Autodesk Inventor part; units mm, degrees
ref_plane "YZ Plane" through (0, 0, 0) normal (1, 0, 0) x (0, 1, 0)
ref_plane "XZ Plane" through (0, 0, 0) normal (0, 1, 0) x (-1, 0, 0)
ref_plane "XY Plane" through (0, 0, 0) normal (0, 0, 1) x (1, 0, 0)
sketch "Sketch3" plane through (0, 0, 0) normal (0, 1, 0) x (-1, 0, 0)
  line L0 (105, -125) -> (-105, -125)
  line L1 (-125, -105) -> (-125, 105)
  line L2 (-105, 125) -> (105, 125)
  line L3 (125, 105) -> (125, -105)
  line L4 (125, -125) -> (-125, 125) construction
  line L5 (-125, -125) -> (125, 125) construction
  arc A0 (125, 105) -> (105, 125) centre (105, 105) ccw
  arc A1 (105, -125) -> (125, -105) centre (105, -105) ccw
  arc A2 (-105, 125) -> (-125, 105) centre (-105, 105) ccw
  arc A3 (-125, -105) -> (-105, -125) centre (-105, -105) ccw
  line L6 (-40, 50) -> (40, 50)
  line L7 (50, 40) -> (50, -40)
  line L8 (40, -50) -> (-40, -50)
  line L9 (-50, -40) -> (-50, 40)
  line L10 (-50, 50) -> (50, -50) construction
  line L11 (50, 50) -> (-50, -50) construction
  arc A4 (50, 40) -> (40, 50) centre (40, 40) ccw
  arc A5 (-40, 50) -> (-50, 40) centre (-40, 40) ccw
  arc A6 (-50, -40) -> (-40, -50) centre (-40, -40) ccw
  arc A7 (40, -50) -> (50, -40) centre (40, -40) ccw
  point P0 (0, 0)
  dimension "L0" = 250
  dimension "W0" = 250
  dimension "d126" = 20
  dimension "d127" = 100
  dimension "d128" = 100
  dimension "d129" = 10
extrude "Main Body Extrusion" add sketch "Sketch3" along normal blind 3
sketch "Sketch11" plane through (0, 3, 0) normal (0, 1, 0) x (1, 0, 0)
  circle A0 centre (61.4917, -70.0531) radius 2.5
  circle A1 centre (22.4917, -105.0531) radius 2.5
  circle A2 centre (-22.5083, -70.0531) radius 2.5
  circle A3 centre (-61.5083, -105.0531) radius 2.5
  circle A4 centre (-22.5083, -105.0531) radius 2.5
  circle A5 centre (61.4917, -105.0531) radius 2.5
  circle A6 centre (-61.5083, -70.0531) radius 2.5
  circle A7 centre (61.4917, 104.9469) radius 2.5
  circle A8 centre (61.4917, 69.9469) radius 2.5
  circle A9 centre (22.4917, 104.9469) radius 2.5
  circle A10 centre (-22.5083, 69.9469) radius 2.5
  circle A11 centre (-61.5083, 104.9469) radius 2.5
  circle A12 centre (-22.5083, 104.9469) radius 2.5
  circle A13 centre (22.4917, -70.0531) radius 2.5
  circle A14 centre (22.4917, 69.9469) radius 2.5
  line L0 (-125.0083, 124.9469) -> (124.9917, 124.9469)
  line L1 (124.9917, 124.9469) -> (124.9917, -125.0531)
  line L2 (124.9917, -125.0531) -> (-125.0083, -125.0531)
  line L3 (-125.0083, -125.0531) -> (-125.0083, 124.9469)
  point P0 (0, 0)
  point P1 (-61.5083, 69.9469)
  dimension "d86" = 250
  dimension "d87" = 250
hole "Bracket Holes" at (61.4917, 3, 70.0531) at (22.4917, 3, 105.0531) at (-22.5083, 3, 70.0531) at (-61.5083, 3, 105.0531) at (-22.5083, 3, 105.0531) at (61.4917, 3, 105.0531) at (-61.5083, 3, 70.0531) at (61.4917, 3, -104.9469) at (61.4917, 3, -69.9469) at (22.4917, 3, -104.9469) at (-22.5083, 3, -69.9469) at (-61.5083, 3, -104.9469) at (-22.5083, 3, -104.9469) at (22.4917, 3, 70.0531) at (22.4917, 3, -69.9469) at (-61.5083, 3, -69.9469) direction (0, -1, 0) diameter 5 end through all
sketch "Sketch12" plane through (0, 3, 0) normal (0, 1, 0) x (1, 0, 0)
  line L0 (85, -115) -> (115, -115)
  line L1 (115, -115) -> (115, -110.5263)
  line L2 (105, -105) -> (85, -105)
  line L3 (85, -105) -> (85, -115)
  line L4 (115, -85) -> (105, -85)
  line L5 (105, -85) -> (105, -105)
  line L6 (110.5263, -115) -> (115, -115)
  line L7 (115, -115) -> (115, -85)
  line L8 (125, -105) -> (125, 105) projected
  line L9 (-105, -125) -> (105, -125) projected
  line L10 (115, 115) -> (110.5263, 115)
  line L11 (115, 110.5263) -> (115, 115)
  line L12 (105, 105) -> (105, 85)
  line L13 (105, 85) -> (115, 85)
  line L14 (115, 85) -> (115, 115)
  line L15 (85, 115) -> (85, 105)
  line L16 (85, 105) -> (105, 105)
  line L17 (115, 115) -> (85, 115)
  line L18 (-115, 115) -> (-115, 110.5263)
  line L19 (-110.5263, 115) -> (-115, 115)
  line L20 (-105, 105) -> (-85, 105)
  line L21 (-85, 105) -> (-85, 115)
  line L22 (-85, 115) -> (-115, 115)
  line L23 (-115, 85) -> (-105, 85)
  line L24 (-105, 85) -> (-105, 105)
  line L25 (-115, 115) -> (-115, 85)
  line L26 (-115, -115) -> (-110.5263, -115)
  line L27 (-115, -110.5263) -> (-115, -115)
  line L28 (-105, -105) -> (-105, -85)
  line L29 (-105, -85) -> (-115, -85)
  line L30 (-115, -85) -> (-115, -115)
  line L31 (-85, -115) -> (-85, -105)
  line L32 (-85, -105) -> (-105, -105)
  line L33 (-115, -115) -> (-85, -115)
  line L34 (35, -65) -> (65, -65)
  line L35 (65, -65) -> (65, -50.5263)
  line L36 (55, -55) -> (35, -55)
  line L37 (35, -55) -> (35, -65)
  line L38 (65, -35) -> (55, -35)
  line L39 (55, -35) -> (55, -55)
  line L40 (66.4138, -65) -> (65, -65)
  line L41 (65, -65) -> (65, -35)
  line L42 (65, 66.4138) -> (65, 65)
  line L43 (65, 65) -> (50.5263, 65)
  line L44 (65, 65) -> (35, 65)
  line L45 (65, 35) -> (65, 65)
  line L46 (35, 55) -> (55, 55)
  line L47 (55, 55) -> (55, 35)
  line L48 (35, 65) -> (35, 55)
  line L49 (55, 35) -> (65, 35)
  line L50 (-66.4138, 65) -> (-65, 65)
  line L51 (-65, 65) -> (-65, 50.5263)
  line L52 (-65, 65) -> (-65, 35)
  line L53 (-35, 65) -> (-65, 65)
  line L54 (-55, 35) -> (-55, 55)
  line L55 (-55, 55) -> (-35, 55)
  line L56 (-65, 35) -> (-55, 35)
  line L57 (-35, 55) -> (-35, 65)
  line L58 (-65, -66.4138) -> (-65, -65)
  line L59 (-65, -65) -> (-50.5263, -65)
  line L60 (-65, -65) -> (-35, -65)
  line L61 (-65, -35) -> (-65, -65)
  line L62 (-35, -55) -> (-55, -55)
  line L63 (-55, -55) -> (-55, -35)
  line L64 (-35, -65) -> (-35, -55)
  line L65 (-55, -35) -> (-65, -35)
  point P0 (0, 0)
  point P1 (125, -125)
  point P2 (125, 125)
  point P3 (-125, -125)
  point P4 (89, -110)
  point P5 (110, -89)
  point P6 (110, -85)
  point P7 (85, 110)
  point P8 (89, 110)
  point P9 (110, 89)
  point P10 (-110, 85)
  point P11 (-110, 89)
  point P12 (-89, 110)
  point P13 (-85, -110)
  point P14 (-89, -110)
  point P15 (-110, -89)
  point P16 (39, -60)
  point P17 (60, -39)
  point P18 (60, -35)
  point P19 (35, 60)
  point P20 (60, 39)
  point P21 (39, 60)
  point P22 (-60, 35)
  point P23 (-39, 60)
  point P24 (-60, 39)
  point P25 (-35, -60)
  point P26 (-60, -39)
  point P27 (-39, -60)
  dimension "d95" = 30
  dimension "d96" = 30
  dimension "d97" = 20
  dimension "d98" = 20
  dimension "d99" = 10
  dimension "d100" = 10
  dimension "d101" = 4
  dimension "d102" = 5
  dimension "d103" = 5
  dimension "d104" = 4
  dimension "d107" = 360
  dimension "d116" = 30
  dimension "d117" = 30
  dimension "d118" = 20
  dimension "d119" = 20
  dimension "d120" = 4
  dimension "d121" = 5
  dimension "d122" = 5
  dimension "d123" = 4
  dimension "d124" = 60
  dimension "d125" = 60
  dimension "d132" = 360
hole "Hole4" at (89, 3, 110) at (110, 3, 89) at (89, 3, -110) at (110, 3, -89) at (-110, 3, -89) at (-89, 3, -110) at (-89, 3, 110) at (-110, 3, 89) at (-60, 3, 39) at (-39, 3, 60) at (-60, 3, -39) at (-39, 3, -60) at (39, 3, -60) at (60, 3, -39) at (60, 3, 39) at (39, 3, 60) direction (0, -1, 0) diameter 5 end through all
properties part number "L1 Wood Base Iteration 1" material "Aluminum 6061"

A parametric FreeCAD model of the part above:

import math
import FreeCAD as App
import Part
import Sketcher
Q = App.Units.Quantity

doc = App.newDocument("Part")
params = doc.addObject("Spreadsheet::Sheet", "Params")
for row, (alias, value) in enumerate([
    ("sketch1_radius", "20 mm"),
    ("sketch1_radius2", "10 mm"),
    ("sketch1_width", "210 mm"),
    ("sketch1_width2", "80 mm"),
    ("pad1_length", "3 mm"),
    ("sketch2_diameter", "5 mm"),
    ("hole_diameter", "5 mm"),
    ("sketch3_diameter", "5 mm"),
    ("hole2_diameter", "5 mm"),
], start=1):
    params.set(f"A{row}", alias)
    params.set(f"B{row}", "=" + value)
    params.setAlias(f"B{row}", alias)

body = doc.addObject("PartDesign::Body", "Body")

# Sketch on XZ plane
sketch1 = body.newObject("Sketcher::SketchObject", "Sketch")
sketch1.AttachmentSupport = (doc.getObject("XZ_Plane"), [""])
sketch1.MapMode = "FlatFace"
sketch1.addGeometry(Part.LineSegment(App.Vector(105, -125, 0), App.Vector(-105, -125, 0)), False)
sketch1.addGeometry(Part.ArcOfCircle(Part.Circle(App.Vector(-105, -105, 0), App.Vector(0, 0, 1), 20), math.radians(180), math.radians(270)), False)
sketch1.addGeometry(Part.LineSegment(App.Vector(-125, -105, 0), App.Vector(-125, 105, 0)), False)
sketch1.addGeometry(Part.ArcOfCircle(Part.Circle(App.Vector(-105, 105, 0), App.Vector(0, 0, 1), 20), math.radians(90), math.radians(180)), False)
sketch1.addGeometry(Part.LineSegment(App.Vector(-105, 125, 0), App.Vector(105, 125, 0)), False)
sketch1.addGeometry(Part.ArcOfCircle(Part.Circle(App.Vector(105, 105, 0), App.Vector(0, 0, 1), 20), math.radians(0), math.radians(90)), False)
sketch1.addGeometry(Part.LineSegment(App.Vector(125, 105, 0), App.Vector(125, -105, 0)), False)
sketch1.addGeometry(Part.ArcOfCircle(Part.Circle(App.Vector(105, -105, 0), App.Vector(0, 0, 1), 20), math.radians(-90), math.radians(0)), False)
sketch1.addGeometry(Part.ArcOfCircle(Part.Circle(App.Vector(40, 40, 0), App.Vector(0, 0, 1), 10), math.radians(0), math.radians(90)), False)
sketch1.addGeometry(Part.LineSegment(App.Vector(40, 50, 0), App.Vector(-40, 50, 0)), False)
sketch1.addGeometry(Part.ArcOfCircle(Part.Circle(App.Vector(-40, 40, 0), App.Vector(0, 0, 1), 10), math.radians(90), math.radians(180)), False)
sketch1.addGeometry(Part.LineSegment(App.Vector(-50, 40, 0), App.Vector(-50, -40, 0)), False)
sketch1.addGeometry(Part.ArcOfCircle(Part.Circle(App.Vector(-40, -40, 0), App.Vector(0, 0, 1), 10), math.radians(180), math.radians(270)), False)
sketch1.addGeometry(Part.LineSegment(App.Vector(-40, -50, 0), App.Vector(40, -50, 0)), False)
sketch1.addGeometry(Part.ArcOfCircle(Part.Circle(App.Vector(40, -40, 0), App.Vector(0, 0, 1), 10), math.radians(-90), math.radians(0)), False)
sketch1.addGeometry(Part.LineSegment(App.Vector(50, -40, 0), App.Vector(50, 40, 0)), False)
sketch1.addConstraint(Sketcher.Constraint("Tangent", 0, 2, 1, 2))
sketch1.addConstraint(Sketcher.Constraint("Tangent", 1, 1, 2, 1))
sketch1.addConstraint(Sketcher.Constraint("Tangent", 2, 2, 3, 2))
sketch1.addConstraint(Sketcher.Constraint("Tangent", 3, 1, 4, 1))
sketch1.addConstraint(Sketcher.Constraint("Tangent", 4, 2, 5, 2))
sketch1.addConstraint(Sketcher.Constraint("Tangent", 5, 1, 6, 1))
sketch1.addConstraint(Sketcher.Constraint("Tangent", 6, 2, 7, 2))
sketch1.addConstraint(Sketcher.Constraint("Tangent", 7, 1, 0, 1))
sketch1.addConstraint(Sketcher.Constraint("Tangent", 8, 2, 9, 1))
sketch1.addConstraint(Sketcher.Constraint("Tangent", 9, 2, 10, 1))
sketch1.addConstraint(Sketcher.Constraint("Tangent", 10, 2, 11, 1))
sketch1.addConstraint(Sketcher.Constraint("Tangent", 11, 2, 12, 1))
sketch1.addConstraint(Sketcher.Constraint("Tangent", 12, 2, 13, 1))
sketch1.addConstraint(Sketcher.Constraint("Tangent", 13, 2, 14, 1))
sketch1.addConstraint(Sketcher.Constraint("Tangent", 14, 2, 15, 1))
sketch1.addConstraint(Sketcher.Constraint("Tangent", 15, 2, 8, 1))
sketch1.addConstraint(Sketcher.Constraint("Horizontal", 0))
sketch1.addConstraint(Sketcher.Constraint("Vertical", 2))
sketch1.addConstraint(Sketcher.Constraint("Horizontal", 4))
sketch1.addConstraint(Sketcher.Constraint("Vertical", 6))
sketch1.addConstraint(Sketcher.Constraint("Horizontal", 9))
sketch1.addConstraint(Sketcher.Constraint("Vertical", 11))
sketch1.addConstraint(Sketcher.Constraint("Horizontal", 13))
sketch1.addConstraint(Sketcher.Constraint("Vertical", 15))
sketch1.addConstraint(Sketcher.Constraint("Equal", 1, 3))
sketch1.addConstraint(Sketcher.Constraint("Equal", 3, 5))
sketch1.addConstraint(Sketcher.Constraint("Equal", 5, 7))
sketch1.addConstraint(Sketcher.Constraint("Equal", 8, 10))
sketch1.addConstraint(Sketcher.Constraint("Equal", 10, 12))
sketch1.addConstraint(Sketcher.Constraint("Equal", 12, 14))
sketch1.addConstraint(Sketcher.Constraint("Symmetric", 1, 3, 5, 3, -1, 1))
sketch1.addConstraint(Sketcher.Constraint("Symmetric", 8, 3, 12, 3, -1, 1))
sketch1.addConstraint(Sketcher.Constraint("Equal", 4, 2))
sketch1.addConstraint(Sketcher.Constraint("Equal", 13, 11))
sketch1.addConstraint(Sketcher.Constraint("Radius", 1, Q("20 mm")))
sketch1.addConstraint(Sketcher.Constraint("Radius", 8, Q("10 mm")))
sketch1.addConstraint(Sketcher.Constraint("DistanceX", 0, 2, 0, 1, Q("210 mm")))
sketch1.addConstraint(Sketcher.Constraint("DistanceX", 9, 2, 9, 1, Q("80 mm")))
sketch1.setExpression("Constraints[34]", "Params.sketch1_radius")
sketch1.setExpression("Constraints[35]", "Params.sketch1_radius2")
sketch1.setExpression("Constraints[36]", "Params.sketch1_width")
sketch1.setExpression("Constraints[37]", "Params.sketch1_width2")
pad1 = body.newObject("PartDesign::Pad", "Pad")
pad1.Profile = sketch1
pad1.setExpression("Length", "Params.pad1_length")
pad1.Reversed = True

# Sketch on XZ plane
sketch2 = body.newObject("Sketcher::SketchObject", "Sketch001")
sketch2.AttachmentSupport = (doc.getObject("XZ_Plane"), [""])
sketch2.MapMode = "FlatFace"
sketch2.AttachmentOffset = App.Placement(App.Vector(0, 0, -3), App.Rotation())
sketch2.addGeometry(Part.Circle(App.Vector(61.5, 70.1, 0), App.Vector(0, 0, 1), 2.5), False)
sketch2.addGeometry(Part.Circle(App.Vector(22.5, 105.1, 0), App.Vector(0, 0, 1), 2.5), False)
sketch2.addGeometry(Part.Circle(App.Vector(-22.5, 70.1, 0), App.Vector(0, 0, 1), 2.5), False)
sketch2.addGeometry(Part.Circle(App.Vector(-61.5, 105.1, 0), App.Vector(0, 0, 1), 2.5), False)
sketch2.addGeometry(Part.Circle(App.Vector(-22.5, 105.1, 0), App.Vector(0, 0, 1), 2.5), False)
sketch2.addGeometry(Part.Circle(App.Vector(61.5, 105.1, 0), App.Vector(0, 0, 1), 2.5), False)
sketch2.addGeometry(Part.Circle(App.Vector(-61.5, 70.1, 0), App.Vector(0, 0, 1), 2.5), False)
sketch2.addGeometry(Part.Circle(App.Vector(61.5, -104.9, 0), App.Vector(0, 0, 1), 2.5), False)
sketch2.addGeometry(Part.Circle(App.Vector(61.5, -69.9, 0), App.Vector(0, 0, 1), 2.5), False)
sketch2.addGeometry(Part.Circle(App.Vector(22.5, -104.9, 0), App.Vector(0, 0, 1), 2.5), False)
sketch2.addGeometry(Part.Circle(App.Vector(-22.5, -69.9, 0), App.Vector(0, 0, 1), 2.5), False)
sketch2.addGeometry(Part.Circle(App.Vector(-61.5, -104.9, 0), App.Vector(0, 0, 1), 2.5), False)
sketch2.addGeometry(Part.Circle(App.Vector(-22.5, -104.9, 0), App.Vector(0, 0, 1), 2.5), False)
sketch2.addGeometry(Part.Circle(App.Vector(22.5, 70.1, 0), App.Vector(0, 0, 1), 2.5), False)
sketch2.addGeometry(Part.Circle(App.Vector(22.5, -69.9, 0), App.Vector(0, 0, 1), 2.5), False)
sketch2.addGeometry(Part.Circle(App.Vector(-61.5, -69.9, 0), App.Vector(0, 0, 1), 2.5), False)
sketch2.addConstraint(Sketcher.Constraint("Equal", 0, 1))
sketch2.addConstraint(Sketcher.Constraint("Equal", 1, 2))
sketch2.addConstraint(Sketcher.Constraint("Equal", 2, 3))
sketch2.addConstraint(Sketcher.Constraint("Equal", 3, 4))
sketch2.addConstraint(Sketcher.Constraint("Equal", 4, 5))
sketch2.addConstraint(Sketcher.Constraint("Equal", 5, 6))
sketch2.addConstraint(Sketcher.Constraint("Equal", 6, 7))
sketch2.addConstraint(Sketcher.Constraint("Equal", 7, 8))
sketch2.addConstraint(Sketcher.Constraint("Equal", 8, 9))
sketch2.addConstraint(Sketcher.Constraint("Equal", 9, 10))
sketch2.addConstraint(Sketcher.Constraint("Equal", 10, 11))
sketch2.addConstraint(Sketcher.Constraint("Equal", 11, 12))
sketch2.addConstraint(Sketcher.Constraint("Equal", 12, 13))
sketch2.addConstraint(Sketcher.Constraint("Equal", 13, 14))
sketch2.addConstraint(Sketcher.Constraint("Equal", 14, 15))
sketch2.addConstraint(Sketcher.Constraint("Horizontal", 0, 3, 2, 3))
sketch2.addConstraint(Sketcher.Constraint("Horizontal", 1, 3, 3, 3))
sketch2.addConstraint(Sketcher.Constraint("Horizontal", 3, 3, 4, 3))
sketch2.addConstraint(Sketcher.Constraint("Horizontal", 4, 3, 5, 3))
sketch2.addConstraint(Sketcher.Constraint("Horizontal", 2, 3, 6, 3))
sketch2.addConstraint(Sketcher.Constraint("Horizontal", 7, 3, 9, 3))
sketch2.addConstraint(Sketcher.Constraint("Horizontal", 8, 3, 10, 3))
sketch2.addConstraint(Sketcher.Constraint("Horizontal", 9, 3, 11, 3))
sketch2.addConstraint(Sketcher.Constraint("Horizontal", 11, 3, 12, 3))
sketch2.addConstraint(Sketcher.Constraint("Horizontal", 6, 3, 13, 3))
sketch2.addConstraint(Sketcher.Constraint("Horizontal", 10, 3, 14, 3))
sketch2.addConstraint(Sketcher.Constraint("Horizontal", 14, 3, 15, 3))
sketch2.addConstraint(Sketcher.Constraint("Vertical", 2, 3, 4, 3))
sketch2.addConstraint(Sketcher.Constraint("Vertical", 0, 3, 5, 3))
sketch2.addConstraint(Sketcher.Constraint("Vertical", 3, 3, 6, 3))
sketch2.addConstraint(Sketcher.Constraint("Vertical", 5, 3, 7, 3))
sketch2.addConstraint(Sketcher.Constraint("Vertical", 7, 3, 8, 3))
sketch2.addConstraint(Sketcher.Constraint("Vertical", 1, 3, 9, 3))
sketch2.addConstraint(Sketcher.Constraint("Vertical", 4, 3, 10, 3))
sketch2.addConstraint(Sketcher.Constraint("Vertical", 6, 3, 11, 3))
sketch2.addConstraint(Sketcher.Constraint("Vertical", 10, 3, 12, 3))
sketch2.addConstraint(Sketcher.Constraint("Vertical", 9, 3, 13, 3))
sketch2.addConstraint(Sketcher.Constraint("Vertical", 13, 3, 14, 3))
sketch2.addConstraint(Sketcher.Constraint("Vertical", 11, 3, 15, 3))
sketch2.addConstraint(Sketcher.Constraint("Diameter", 0, Q("5 mm")))
sketch2.addConstraint(Sketcher.Constraint("DistanceX", 1, 3, 0, 3, Q("39 mm")))
sketch2.addConstraint(Sketcher.Constraint("DistanceY", 0, 3, 1, 3, Q("35 mm")))
sketch2.addConstraint(Sketcher.Constraint("DistanceX", 2, 3, 1, 3, Q("45 mm")))
sketch2.addConstraint(Sketcher.Constraint("DistanceX", 3, 3, 2, 3, Q("39 mm")))
sketch2.addConstraint(Sketcher.Constraint("DistanceY", 7, 3, 0, 3, Q("175 mm")))
sketch2.addConstraint(Sketcher.Constraint("DistanceY", 7, 3, 8, 3, Q("35 mm")))
sketch2.addConstraint(Sketcher.Constraint("DistanceY", -1, 1, 0, 3, Q("70.053 mm")))
sketch2.addConstraint(Sketcher.Constraint("DistanceX", -1, 1, 0, 3, Q("61.4917 mm")))
sketch2.setExpression("Constraints[39]", "Params.sketch2_diameter")
doc.recompute()
hole = body.newObject("PartDesign::Hole", "Hole")
hole.Profile = sketch2
hole.ThreadType = "None"
hole.setExpression("Diameter", "Params.hole_diameter")
hole.DepthType = "ThroughAll"
hole.Reversed = True

# Sketch on XZ plane
sketch3 = body.newObject("Sketcher::SketchObject", "Sketch002")
sketch3.AttachmentSupport = (doc.getObject("XZ_Plane"), [""])
sketch3.MapMode = "FlatFace"
sketch3.AttachmentOffset = App.Placement(App.Vector(0, 0, -3), App.Rotation())
sketch3.addGeometry(Part.Circle(App.Vector(89, 110, 0), App.Vector(0, 0, 1), 2.5), False)
sketch3.addGeometry(Part.Circle(App.Vector(110, 89, 0), App.Vector(0, 0, 1), 2.5), False)
sketch3.addGeometry(Part.Circle(App.Vector(89, -110, 0), App.Vector(0, 0, 1), 2.5), False)
sketch3.addGeometry(Part.Circle(App.Vector(110, -89, 0), App.Vector(0, 0, 1), 2.5), False)
sketch3.addGeometry(Part.Circle(App.Vector(-110, -89, 0), App.Vector(0, 0, 1), 2.5), False)
sketch3.addGeometry(Part.Circle(App.Vector(-89, -110, 0), App.Vector(0, 0, 1), 2.5), False)
sketch3.addGeometry(Part.Circle(App.Vector(-89, 110, 0), App.Vector(0, 0, 1), 2.5), False)
sketch3.addGeometry(Part.Circle(App.Vector(-110, 89, 0), App.Vector(0, 0, 1), 2.5), False)
sketch3.addGeometry(Part.Circle(App.Vector(-60, 39, 0), App.Vector(0, 0, 1), 2.5), False)
sketch3.addGeometry(Part.Circle(App.Vector(-39, 60, 0), App.Vector(0, 0, 1), 2.5), False)
sketch3.addGeometry(Part.Circle(App.Vector(-60, -39, 0), App.Vector(0, 0, 1), 2.5), False)
sketch3.addGeometry(Part.Circle(App.Vector(-39, -60, 0), App.Vector(0, 0, 1), 2.5), False)
sketch3.addGeometry(Part.Circle(App.Vector(39, -60, 0), App.Vector(0, 0, 1), 2.5), False)
sketch3.addGeometry(Part.Circle(App.Vector(60, -39, 0), App.Vector(0, 0, 1), 2.5), False)
sketch3.addGeometry(Part.Circle(App.Vector(60, 39, 0), App.Vector(0, 0, 1), 2.5), False)
sketch3.addGeometry(Part.Circle(App.Vector(39, 60, 0), App.Vector(0, 0, 1), 2.5), False)
sketch3.addConstraint(Sketcher.Constraint("Equal", 0, 1))
sketch3.addConstraint(Sketcher.Constraint("Equal", 1, 2))
sketch3.addConstraint(Sketcher.Constraint("Equal", 2, 3))
sketch3.addConstraint(Sketcher.Constraint("Equal", 3, 4))
sketch3.addConstraint(Sketcher.Constraint("Equal", 4, 5))
sketch3.addConstraint(Sketcher.Constraint("Equal", 5, 6))
sketch3.addConstraint(Sketcher.Constraint("Equal", 6, 7))
sketch3.addConstraint(Sketcher.Constraint("Equal", 7, 8))
sketch3.addConstraint(Sketcher.Constraint("Equal", 8, 9))
sketch3.addConstraint(Sketcher.Constraint("Equal", 9, 10))
sketch3.addConstraint(Sketcher.Constraint("Equal", 10, 11))
sketch3.addConstraint(Sketcher.Constraint("Equal", 11, 12))
sketch3.addConstraint(Sketcher.Constraint("Equal", 12, 13))
sketch3.addConstraint(Sketcher.Constraint("Equal", 13, 14))
sketch3.addConstraint(Sketcher.Constraint("Equal", 14, 15))
sketch3.addConstraint(Sketcher.Constraint("Symmetric", 1, 3, 4, 3, -1, 1))
sketch3.addConstraint(Sketcher.Constraint("Symmetric", 0, 3, 5, 3, -1, 1))
sketch3.addConstraint(Sketcher.Constraint("Symmetric", 2, 3, 6, 3, -1, 1))
sketch3.addConstraint(Sketcher.Constraint("Symmetric", 3, 3, 7, 3, -1, 1))
sketch3.addConstraint(Sketcher.Constraint("Symmetric", 9, 3, 12, 3, -1, 1))
sketch3.addConstraint(Sketcher.Constraint("Symmetric", 8, 3, 13, 3, -1, 1))
sketch3.addConstraint(Sketcher.Constraint("Symmetric", 10, 3, 14, 3, -1, 1))
sketch3.addConstraint(Sketcher.Constraint("Symmetric", 11, 3, 15, 3, -1, 1))
sketch3.addConstraint(Sketcher.Constraint("Symmetric", 3, 3, 4, 3, -2))
sketch3.addConstraint(Sketcher.Constraint("Symmetric", 2, 3, 5, 3, -2))
sketch3.addConstraint(Sketcher.Constraint("Symmetric", 11, 3, 12, 3, -2))
sketch3.addConstraint(Sketcher.Constraint("Symmetric", 10, 3, 13, 3, -2))
sketch3.addConstraint(Sketcher.Constraint("Diameter", 0, Q("5 mm")))
sketch3.addConstraint(Sketcher.Constraint("DistanceX", -1, 1, 0, 3, Q("89 mm")))
sketch3.addConstraint(Sketcher.Constraint("DistanceY", -1, 1, 0, 3, Q("110 mm")))
sketch3.addConstraint(Sketcher.Constraint("DistanceX", -1, 1, 1, 3, Q("110 mm")))
sketch3.addConstraint(Sketcher.Constraint("DistanceY", -1, 1, 1, 3, Q("89 mm")))
sketch3.addConstraint(Sketcher.Constraint("DistanceX", 8, 3, -1, 1, Q("60 mm")))
sketch3.addConstraint(Sketcher.Constraint("DistanceY", -1, 1, 8, 3, Q("39 mm")))
sketch3.addConstraint(Sketcher.Constraint("DistanceX", 9, 3, -1, 1, Q("39 mm")))
sketch3.addConstraint(Sketcher.Constraint("DistanceY", -1, 1, 9, 3, Q("60 mm")))
sketch3.setExpression("Constraints[27]", "Params.sketch3_diameter")
doc.recompute()
hole2 = body.newObject("PartDesign::Hole", "Hole001")
hole2.Profile = sketch3
hole2.ThreadType = "None"
hole2.setExpression("Diameter", "Params.hole2_diameter")
hole2.DepthType = "ThroughAll"
hole2.Reversed = True

doc.recompute()
